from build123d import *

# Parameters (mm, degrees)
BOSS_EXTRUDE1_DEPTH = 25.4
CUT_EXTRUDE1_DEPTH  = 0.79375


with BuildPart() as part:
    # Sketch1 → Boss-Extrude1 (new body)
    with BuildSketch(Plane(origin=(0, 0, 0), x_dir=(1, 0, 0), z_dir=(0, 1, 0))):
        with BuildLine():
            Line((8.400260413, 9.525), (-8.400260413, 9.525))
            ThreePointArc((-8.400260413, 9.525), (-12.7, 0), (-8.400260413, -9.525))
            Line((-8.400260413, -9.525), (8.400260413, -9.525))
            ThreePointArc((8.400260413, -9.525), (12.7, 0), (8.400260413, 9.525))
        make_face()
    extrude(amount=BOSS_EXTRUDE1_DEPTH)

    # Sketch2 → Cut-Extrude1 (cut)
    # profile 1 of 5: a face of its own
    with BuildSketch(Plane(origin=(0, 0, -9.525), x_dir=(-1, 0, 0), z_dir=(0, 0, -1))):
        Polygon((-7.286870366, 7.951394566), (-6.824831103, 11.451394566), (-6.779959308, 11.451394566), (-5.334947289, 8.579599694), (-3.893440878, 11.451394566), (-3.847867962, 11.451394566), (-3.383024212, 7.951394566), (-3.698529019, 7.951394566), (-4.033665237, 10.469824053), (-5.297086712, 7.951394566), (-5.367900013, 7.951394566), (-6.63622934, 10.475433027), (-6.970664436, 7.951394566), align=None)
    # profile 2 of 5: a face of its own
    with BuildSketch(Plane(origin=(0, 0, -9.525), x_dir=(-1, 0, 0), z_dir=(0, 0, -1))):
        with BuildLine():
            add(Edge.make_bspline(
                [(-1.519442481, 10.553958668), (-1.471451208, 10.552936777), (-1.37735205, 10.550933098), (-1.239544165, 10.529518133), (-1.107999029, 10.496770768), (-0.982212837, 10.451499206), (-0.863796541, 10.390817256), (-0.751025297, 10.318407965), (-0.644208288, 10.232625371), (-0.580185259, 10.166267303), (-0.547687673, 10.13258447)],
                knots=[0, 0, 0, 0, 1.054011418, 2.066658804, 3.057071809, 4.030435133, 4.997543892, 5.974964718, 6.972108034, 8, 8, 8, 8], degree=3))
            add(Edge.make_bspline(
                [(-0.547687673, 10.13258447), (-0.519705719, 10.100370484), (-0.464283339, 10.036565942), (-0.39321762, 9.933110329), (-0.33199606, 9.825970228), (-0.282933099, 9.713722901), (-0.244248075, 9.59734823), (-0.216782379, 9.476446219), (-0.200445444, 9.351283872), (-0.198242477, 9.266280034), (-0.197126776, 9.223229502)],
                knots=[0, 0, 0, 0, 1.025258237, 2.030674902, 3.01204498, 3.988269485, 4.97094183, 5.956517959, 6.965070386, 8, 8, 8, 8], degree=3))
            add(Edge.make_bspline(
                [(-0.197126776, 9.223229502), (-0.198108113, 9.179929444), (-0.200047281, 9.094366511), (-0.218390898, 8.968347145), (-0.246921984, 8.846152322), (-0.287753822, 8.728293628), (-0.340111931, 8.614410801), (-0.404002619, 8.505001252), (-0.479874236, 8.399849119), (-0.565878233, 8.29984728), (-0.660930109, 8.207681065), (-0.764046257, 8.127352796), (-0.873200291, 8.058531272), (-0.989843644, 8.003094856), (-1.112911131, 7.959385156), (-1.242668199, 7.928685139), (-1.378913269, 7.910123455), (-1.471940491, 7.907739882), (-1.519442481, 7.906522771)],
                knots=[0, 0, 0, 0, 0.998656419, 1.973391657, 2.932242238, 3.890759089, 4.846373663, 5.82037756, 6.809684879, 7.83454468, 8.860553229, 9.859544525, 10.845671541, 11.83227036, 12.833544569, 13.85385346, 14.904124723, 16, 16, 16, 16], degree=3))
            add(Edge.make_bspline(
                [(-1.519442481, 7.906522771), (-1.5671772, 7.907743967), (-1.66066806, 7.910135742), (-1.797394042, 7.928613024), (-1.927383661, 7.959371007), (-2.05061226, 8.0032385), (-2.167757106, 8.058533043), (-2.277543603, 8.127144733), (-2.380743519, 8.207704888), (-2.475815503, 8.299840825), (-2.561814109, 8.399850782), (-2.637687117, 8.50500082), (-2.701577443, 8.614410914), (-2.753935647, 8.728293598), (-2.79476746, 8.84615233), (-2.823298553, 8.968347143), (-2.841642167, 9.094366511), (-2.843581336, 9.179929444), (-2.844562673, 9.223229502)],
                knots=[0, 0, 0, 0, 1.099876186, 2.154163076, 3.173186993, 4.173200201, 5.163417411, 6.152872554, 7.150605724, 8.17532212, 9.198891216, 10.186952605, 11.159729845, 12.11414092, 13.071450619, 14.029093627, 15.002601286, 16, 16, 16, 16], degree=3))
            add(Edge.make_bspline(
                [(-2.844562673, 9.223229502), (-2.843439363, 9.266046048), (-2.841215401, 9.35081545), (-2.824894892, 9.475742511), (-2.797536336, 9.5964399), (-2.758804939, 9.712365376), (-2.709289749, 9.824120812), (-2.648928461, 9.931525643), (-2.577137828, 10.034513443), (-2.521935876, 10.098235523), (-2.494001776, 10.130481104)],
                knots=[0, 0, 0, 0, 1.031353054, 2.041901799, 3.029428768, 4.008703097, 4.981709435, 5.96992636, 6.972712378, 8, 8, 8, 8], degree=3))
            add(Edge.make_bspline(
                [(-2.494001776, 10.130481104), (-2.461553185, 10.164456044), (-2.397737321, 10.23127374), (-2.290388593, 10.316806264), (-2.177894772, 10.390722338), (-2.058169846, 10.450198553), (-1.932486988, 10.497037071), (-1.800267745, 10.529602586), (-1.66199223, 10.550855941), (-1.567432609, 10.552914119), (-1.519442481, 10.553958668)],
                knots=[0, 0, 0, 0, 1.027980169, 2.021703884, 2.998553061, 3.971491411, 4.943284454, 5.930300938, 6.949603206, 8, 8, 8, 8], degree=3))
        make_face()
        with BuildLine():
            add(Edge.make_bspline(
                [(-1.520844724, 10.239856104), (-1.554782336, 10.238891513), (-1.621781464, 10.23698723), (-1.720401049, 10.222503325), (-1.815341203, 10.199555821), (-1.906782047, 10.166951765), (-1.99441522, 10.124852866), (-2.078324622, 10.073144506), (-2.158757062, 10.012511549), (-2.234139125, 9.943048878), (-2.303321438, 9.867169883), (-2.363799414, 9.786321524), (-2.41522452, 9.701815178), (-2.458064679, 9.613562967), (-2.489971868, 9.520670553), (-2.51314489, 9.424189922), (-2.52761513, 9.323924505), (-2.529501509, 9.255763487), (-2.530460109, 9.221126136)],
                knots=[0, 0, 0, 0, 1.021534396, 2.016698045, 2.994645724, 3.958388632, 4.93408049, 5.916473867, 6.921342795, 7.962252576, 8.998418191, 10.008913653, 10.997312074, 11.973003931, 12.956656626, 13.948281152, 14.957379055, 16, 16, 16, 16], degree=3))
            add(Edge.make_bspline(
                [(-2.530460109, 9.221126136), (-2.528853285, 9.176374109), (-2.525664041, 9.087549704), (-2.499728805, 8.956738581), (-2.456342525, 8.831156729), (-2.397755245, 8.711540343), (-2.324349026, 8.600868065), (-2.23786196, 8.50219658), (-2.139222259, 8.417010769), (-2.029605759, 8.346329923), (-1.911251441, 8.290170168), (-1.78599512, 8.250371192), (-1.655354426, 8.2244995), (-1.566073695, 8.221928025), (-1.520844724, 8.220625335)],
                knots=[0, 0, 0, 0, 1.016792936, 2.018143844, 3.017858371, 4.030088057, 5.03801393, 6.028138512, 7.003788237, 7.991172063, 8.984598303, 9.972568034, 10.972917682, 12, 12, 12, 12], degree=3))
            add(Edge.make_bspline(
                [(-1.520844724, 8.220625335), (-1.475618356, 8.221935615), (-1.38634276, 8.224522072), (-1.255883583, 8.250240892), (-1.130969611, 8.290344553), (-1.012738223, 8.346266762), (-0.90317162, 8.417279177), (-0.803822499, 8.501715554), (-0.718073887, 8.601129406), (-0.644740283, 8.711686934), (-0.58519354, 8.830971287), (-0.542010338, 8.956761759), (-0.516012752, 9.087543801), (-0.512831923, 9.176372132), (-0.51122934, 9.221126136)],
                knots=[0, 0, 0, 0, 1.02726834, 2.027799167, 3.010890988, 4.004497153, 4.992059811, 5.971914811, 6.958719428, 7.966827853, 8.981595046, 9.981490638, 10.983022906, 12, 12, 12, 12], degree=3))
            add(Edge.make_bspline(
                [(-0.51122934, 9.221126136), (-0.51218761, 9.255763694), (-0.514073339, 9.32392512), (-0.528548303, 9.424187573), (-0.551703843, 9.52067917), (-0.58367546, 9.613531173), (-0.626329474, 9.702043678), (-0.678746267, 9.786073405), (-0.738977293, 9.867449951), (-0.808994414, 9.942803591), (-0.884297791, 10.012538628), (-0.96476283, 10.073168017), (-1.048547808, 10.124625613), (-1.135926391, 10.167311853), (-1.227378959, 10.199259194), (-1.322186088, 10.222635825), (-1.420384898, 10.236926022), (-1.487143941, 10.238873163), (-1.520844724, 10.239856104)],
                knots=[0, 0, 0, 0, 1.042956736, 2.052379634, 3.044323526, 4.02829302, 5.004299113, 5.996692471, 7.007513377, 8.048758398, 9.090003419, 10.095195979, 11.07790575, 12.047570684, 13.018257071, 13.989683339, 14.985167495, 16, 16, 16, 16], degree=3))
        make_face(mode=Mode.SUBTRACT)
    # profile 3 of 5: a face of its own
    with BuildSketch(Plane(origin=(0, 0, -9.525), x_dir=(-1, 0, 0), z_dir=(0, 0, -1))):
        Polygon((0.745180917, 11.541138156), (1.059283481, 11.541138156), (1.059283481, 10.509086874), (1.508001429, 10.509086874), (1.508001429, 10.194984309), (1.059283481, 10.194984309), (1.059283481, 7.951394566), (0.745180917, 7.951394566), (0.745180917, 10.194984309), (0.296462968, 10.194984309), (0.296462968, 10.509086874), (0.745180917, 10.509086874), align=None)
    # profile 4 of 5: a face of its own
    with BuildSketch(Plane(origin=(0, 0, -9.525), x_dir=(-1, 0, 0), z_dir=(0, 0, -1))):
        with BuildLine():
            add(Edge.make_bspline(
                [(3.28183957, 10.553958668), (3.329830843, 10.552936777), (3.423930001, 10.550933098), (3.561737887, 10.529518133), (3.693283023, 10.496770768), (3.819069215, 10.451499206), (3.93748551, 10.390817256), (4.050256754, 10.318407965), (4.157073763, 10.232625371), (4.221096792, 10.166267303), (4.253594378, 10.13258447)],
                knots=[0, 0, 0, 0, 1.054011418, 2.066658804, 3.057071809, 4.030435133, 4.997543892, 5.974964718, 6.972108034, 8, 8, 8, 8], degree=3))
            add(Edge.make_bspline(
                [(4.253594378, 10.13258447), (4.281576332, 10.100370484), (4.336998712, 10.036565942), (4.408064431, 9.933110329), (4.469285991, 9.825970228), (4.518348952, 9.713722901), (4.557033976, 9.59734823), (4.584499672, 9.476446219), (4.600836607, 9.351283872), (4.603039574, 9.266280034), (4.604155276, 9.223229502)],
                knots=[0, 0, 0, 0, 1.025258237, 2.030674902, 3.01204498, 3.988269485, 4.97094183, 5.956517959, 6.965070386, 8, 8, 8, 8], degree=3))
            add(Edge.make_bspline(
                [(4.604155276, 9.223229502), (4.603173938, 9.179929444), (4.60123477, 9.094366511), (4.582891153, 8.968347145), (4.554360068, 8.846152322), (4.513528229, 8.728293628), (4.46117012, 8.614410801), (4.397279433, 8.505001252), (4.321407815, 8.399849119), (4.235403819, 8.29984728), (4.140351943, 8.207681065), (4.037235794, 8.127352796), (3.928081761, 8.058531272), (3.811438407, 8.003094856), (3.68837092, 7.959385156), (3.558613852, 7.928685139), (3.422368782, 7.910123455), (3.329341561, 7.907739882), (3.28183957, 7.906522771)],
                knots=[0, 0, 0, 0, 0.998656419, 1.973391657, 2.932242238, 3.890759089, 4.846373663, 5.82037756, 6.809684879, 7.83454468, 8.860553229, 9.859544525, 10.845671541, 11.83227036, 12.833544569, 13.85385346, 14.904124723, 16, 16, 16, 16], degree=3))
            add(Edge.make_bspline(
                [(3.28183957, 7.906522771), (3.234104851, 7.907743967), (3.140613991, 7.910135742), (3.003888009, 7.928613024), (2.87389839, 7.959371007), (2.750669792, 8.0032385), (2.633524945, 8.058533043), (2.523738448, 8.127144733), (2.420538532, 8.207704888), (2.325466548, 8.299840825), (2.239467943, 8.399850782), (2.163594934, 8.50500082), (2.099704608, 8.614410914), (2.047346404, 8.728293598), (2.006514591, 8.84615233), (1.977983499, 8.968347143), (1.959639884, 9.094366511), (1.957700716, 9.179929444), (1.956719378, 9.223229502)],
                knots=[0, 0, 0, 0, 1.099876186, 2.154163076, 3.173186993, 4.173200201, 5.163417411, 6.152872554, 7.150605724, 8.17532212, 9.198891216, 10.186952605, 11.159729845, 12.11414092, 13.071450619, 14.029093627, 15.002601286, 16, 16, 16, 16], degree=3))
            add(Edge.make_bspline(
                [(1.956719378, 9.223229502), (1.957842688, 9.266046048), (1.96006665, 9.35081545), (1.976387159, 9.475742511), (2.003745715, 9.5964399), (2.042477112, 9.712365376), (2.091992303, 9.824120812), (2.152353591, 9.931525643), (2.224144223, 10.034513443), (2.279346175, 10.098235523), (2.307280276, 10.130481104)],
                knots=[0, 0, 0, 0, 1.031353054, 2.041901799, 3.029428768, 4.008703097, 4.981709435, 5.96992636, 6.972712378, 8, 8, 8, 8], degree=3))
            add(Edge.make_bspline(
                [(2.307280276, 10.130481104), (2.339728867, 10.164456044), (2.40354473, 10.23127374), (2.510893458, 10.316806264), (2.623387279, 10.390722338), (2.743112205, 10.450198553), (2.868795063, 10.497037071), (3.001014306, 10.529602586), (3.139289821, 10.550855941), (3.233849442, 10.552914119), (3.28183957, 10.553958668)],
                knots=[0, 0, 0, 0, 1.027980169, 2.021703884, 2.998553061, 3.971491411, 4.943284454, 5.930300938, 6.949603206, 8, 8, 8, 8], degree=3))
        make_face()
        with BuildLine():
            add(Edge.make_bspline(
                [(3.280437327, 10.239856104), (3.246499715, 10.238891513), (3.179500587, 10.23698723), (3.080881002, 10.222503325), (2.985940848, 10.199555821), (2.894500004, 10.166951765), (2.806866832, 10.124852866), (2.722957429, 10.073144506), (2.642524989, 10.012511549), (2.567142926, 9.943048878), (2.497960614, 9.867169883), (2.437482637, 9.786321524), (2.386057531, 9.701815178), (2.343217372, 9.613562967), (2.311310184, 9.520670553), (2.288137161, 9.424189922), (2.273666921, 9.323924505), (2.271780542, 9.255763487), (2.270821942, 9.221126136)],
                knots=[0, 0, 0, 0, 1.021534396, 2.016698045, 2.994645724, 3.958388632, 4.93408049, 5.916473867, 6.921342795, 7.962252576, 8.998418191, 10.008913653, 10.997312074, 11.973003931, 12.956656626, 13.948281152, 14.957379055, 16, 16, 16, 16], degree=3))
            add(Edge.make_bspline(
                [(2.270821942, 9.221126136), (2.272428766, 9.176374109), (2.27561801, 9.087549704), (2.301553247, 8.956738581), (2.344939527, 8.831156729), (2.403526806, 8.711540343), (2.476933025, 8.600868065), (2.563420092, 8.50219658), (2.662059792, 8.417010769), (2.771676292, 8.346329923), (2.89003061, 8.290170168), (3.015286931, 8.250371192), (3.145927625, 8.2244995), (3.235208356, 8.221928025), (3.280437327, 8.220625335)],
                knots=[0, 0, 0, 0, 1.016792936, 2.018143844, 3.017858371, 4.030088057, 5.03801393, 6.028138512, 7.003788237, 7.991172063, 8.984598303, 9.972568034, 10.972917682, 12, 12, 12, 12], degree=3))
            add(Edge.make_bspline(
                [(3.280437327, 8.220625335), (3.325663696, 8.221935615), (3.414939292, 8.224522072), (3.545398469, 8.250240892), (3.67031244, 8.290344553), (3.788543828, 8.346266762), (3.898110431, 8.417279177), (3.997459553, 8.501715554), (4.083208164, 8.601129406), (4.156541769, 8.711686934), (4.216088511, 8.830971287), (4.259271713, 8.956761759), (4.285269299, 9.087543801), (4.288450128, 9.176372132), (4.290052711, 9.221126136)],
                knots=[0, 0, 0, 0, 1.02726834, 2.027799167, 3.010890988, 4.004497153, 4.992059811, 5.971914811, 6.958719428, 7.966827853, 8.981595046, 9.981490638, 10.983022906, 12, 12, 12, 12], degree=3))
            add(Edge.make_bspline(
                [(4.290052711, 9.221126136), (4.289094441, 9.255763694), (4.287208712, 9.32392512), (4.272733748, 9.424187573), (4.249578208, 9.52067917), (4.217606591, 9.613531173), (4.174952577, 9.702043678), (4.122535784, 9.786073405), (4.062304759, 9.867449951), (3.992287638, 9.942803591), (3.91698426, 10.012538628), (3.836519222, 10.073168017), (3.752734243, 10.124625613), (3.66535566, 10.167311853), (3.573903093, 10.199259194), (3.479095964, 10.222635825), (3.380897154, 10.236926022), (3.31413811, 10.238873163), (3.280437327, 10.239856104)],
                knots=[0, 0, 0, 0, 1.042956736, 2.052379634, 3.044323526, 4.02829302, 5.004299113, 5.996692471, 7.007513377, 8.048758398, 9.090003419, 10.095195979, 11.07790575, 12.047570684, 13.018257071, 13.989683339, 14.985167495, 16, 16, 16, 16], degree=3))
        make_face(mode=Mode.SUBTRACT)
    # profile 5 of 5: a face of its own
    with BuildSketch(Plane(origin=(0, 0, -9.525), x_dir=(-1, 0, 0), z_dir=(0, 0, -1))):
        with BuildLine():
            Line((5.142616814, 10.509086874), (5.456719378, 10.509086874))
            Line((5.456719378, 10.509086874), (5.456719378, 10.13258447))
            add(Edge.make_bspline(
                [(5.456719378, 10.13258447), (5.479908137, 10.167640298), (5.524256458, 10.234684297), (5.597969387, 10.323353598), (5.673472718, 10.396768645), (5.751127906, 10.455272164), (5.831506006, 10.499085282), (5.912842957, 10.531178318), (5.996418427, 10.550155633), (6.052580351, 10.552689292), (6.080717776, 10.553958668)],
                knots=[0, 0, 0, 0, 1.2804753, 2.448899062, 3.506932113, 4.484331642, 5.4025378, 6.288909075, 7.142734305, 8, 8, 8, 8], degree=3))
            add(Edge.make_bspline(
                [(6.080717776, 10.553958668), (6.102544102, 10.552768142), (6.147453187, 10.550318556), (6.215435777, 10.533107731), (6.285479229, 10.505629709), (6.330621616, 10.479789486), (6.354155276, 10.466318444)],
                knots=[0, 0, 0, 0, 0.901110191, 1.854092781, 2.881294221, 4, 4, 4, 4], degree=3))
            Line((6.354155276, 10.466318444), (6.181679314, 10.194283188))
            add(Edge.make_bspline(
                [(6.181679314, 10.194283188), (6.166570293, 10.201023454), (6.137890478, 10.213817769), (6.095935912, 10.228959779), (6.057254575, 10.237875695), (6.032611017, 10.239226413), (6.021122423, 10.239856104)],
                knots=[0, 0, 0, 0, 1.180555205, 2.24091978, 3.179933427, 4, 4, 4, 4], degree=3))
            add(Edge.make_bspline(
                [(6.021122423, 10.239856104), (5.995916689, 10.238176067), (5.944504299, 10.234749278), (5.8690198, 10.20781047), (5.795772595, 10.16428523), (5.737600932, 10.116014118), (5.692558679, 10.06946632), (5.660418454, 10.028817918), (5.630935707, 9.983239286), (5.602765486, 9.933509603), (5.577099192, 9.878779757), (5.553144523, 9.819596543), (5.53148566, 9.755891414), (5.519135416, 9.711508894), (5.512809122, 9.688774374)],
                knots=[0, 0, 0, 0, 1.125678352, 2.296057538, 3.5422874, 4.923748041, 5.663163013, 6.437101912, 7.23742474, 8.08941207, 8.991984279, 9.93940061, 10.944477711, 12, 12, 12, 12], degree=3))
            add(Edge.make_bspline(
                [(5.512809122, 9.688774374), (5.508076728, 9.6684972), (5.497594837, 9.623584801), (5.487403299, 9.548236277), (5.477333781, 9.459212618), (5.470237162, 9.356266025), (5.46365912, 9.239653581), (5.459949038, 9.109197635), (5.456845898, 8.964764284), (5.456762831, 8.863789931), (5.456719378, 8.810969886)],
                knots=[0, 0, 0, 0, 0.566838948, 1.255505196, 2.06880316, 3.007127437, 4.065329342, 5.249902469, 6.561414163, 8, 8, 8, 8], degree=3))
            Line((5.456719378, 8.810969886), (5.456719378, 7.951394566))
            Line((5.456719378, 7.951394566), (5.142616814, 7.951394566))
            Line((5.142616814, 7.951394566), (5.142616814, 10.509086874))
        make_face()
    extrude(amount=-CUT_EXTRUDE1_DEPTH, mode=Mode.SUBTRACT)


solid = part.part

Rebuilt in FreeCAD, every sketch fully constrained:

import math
import FreeCAD as App
import Part
import Sketcher
Q = App.Units.Quantity


def add_polygon(sketch, points):
    """Adds a closed chain of lines whose ends are joined by coincident constraints."""
    first, n = sketch.GeometryCount, len(points)
    for a, b in zip(points, points[1:] + points[:1]):
        sketch.addGeometry(Part.LineSegment(App.Vector(*a, 0), App.Vector(*b, 0)), False)
    for i in range(n):
        sketch.addConstraint(Sketcher.Constraint("Coincident", first + i, 2, first + (i + 1) % n, 1))

doc = App.newDocument("Part")
body = doc.addObject("PartDesign::Body", "Body")

# Sketch on XZ plane
sketch1 = body.newObject("Sketcher::SketchObject", "Sketch")
sketch1.AttachmentSupport = (doc.getObject("XZ_Plane"), [""])
sketch1.MapMode = "FlatFace"
sketch1.addGeometry([
    Part.LineSegment(App.Vector(8, -10, 0), App.Vector(-8, -10, 0)),
    Part.ArcOfCircle(Part.Circle(App.Vector(0, 0, 0), App.Vector(0, 0, 1), 13), math.radians(131), math.radians(229)),
    Part.LineSegment(App.Vector(-8, 10, 0), App.Vector(8, 10, 0)),
    Part.ArcOfCircle(Part.Circle(App.Vector(0, 0, 0), App.Vector(0, 0, 1), 13), math.radians(-49), math.radians(49)),
], False)
sketch1.addConstraint([
    Sketcher.Constraint("Coincident", 0, 2, 1, 2),
    Sketcher.Constraint("Coincident", 1, 1, 2, 1),
    Sketcher.Constraint("Coincident", 2, 2, 3, 2),
    Sketcher.Constraint("Coincident", 3, 1, 0, 1),
    Sketcher.Constraint("Horizontal", 0),
    Sketcher.Constraint("Horizontal", 2),
    Sketcher.Constraint("Coincident", 1, 3, -1, 1),
    Sketcher.Constraint("Coincident", 3, 3, -1, 1),
    Sketcher.Constraint("Equal", 1, 3),
    Sketcher.Constraint("Vertical", 0, 2, 1, 1),
    Sketcher.Constraint("Radius", 1, Q("0.5 in")),
    Sketcher.Constraint("DistanceY", 0, 2, 1, 1, Q("0.75 in")),
])
pad1 = body.newObject("PartDesign::Pad", "Pad")
pad1.Profile = sketch1
pad1.Length = Q("1 in")
pad1.Reversed = True

# Sketch on XY plane
sketch2 = body.newObject("Sketcher::SketchObject", "Sketch001")
sketch2.AttachmentSupport = (doc.getObject("XY_Plane"), [""])
sketch2.MapMode = "FlatFace"
sketch2.AttachmentOffset = App.Placement(App.Vector(0, 0, -0.375 * 25.4), App.Rotation())
add_polygon(sketch2, [(6.824831, 11.451395), (7.28687, 7.951395), (6.970664, 7.951395), (6.636229, 10.475433), (5.3679, 7.951395), (5.297087, 7.951395), (4.033665, 10.469824), (3.698529, 7.951395), (3.383024, 7.951395), (3.847868, 11.451395), (3.893441, 11.451395), (5.334947, 8.5796), (6.779959, 11.451395)])  # lines 0-12
sketch2.addGeometry(Part.BSplineCurve([App.Vector(1.519442, 10.553959, 0), App.Vector(1.471451, 10.552937, 0), App.Vector(1.377352, 10.550933, 0), App.Vector(1.239544, 10.529518, 0), App.Vector(1.107999, 10.496771, 0), App.Vector(0.982213, 10.451499, 0), App.Vector(0.863797, 10.390817, 0), App.Vector(0.751025, 10.318408, 0), App.Vector(0.644208, 10.232625, 0), App.Vector(0.580185, 10.166267, 0), App.Vector(0.547688, 10.132584, 0)], [4, 1, 1, 1, 1, 1, 1, 1, 4], [0, 1.054011418, 2.066658804, 3.057071809, 4.030435133, 4.997543892, 5.974964718, 6.972108034, 8], False, 3, [1, 1, 1, 1, 1, 1, 1, 1, 1, 1, 1], False), False)  # 13
sketch2.addGeometry(Part.BSplineCurve([App.Vector(2.494002, 10.130481, 0), App.Vector(2.461553, 10.164456, 0), App.Vector(2.397737, 10.231274, 0), App.Vector(2.290389, 10.316806, 0), App.Vector(2.177895, 10.390722, 0), App.Vector(2.05817, 10.450199, 0), App.Vector(1.932487, 10.497037, 0), App.Vector(1.800268, 10.529603, 0), App.Vector(1.661992, 10.550856, 0), App.Vector(1.567433, 10.552914, 0), App.Vector(1.519442, 10.553959, 0)], [4, 1, 1, 1, 1, 1, 1, 1, 4], [0, 1.027980169, 2.021703884, 2.998553061, 3.971491411, 4.943284454, 5.930300938, 6.949603206, 8], False, 3, [1, 1, 1, 1, 1, 1, 1, 1, 1, 1, 1], False), False)  # 14
sketch2.addGeometry(Part.BSplineCurve([App.Vector(2.844563, 9.22323, 0), App.Vector(2.843439, 9.266046, 0), App.Vector(2.841215, 9.350815, 0), App.Vector(2.824895, 9.475743, 0), App.Vector(2.797536, 9.59644, 0), App.Vector(2.758805, 9.712365, 0), App.Vector(2.70929, 9.824121, 0), App.Vector(2.648928, 9.931526, 0), App.Vector(2.577138, 10.034513, 0), App.Vector(2.521936, 10.098236, 0), App.Vector(2.494002, 10.130481, 0)], [4, 1, 1, 1, 1, 1, 1, 1, 4], [0, 1.031353054, 2.041901799, 3.029428768, 4.008703097, 4.981709435, 5.96992636, 6.972712378, 8], False, 3, [1, 1, 1, 1, 1, 1, 1, 1, 1, 1, 1], False), False)  # 15
sketch2.addGeometry(Part.BSplineCurve([App.Vector(1.519442, 7.906523, 0), App.Vector(1.567177, 7.907744, 0), App.Vector(1.660668, 7.910136, 0), App.Vector(1.797394, 7.928613, 0), App.Vector(1.927384, 7.959371, 0), App.Vector(2.050612, 8.003239, 0), App.Vector(2.167757, 8.058533, 0), App.Vector(2.277544, 8.127145, 0), App.Vector(2.380744, 8.207705, 0), App.Vector(2.475816, 8.299841, 0), App.Vector(2.561814, 8.399851, 0), App.Vector(2.637687, 8.505001, 0), App.Vector(2.701577, 8.614411, 0), App.Vector(2.753936, 8.728294, 0), App.Vector(2.794767, 8.846152, 0), App.Vector(2.823299, 8.968347, 0), App.Vector(2.841642, 9.094367, 0), App.Vector(2.843581, 9.179929, 0), App.Vector(2.844563, 9.22323, 0)], [4, 1, 1, 1, 1, 1, 1, 1, 1, 1, 1, 1, 1, 1, 1, 1, 4], [0, 1.099876186, 2.154163076, 3.173186993, 4.173200201, 5.163417411, 6.152872554, 7.150605724, 8.17532212, 9.198891216, 10.186952605, 11.159729845, 12.11414092, 13.071450619, 14.029093627, 15.002601286, 16], False, 3, [1, 1, 1, 1, 1, 1, 1, 1, 1, 1, 1, 1, 1, 1, 1, 1, 1, 1, 1], False), False)  # 16
sketch2.addGeometry(Part.BSplineCurve([App.Vector(0.197127, 9.22323, 0), App.Vector(0.198108, 9.179929, 0), App.Vector(0.200047, 9.094367, 0), App.Vector(0.218391, 8.968347, 0), App.Vector(0.246922, 8.846152, 0), App.Vector(0.287754, 8.728294, 0), App.Vector(0.340112, 8.614411, 0), App.Vector(0.404003, 8.505001, 0), App.Vector(0.479874, 8.399849, 0), App.Vector(0.565878, 8.299847, 0), App.Vector(0.66093, 8.207681, 0), App.Vector(0.764046, 8.127353, 0), App.Vector(0.8732, 8.058531, 0), App.Vector(0.989844, 8.003095, 0), App.Vector(1.112911, 7.959385, 0), App.Vector(1.242668, 7.928685, 0), App.Vector(1.378913, 7.910123, 0), App.Vector(1.47194, 7.90774, 0), App.Vector(1.519442, 7.906523, 0)], [4, 1, 1, 1, 1, 1, 1, 1, 1, 1, 1, 1, 1, 1, 1, 1, 4], [0, 0.998656419, 1.973391657, 2.932242238, 3.890759089, 4.846373663, 5.82037756, 6.809684879, 7.83454468, 8.860553229, 9.859544525, 10.845671541, 11.83227036, 12.833544569, 13.85385346, 14.904124723, 16], False, 3, [1, 1, 1, 1, 1, 1, 1, 1, 1, 1, 1, 1, 1, 1, 1, 1, 1, 1, 1], False), False)  # 17
sketch2.addGeometry(Part.BSplineCurve([App.Vector(0.547688, 10.132584, 0), App.Vector(0.519706, 10.10037, 0), App.Vector(0.464283, 10.036566, 0), App.Vector(0.393218, 9.93311, 0), App.Vector(0.331996, 9.82597, 0), App.Vector(0.282933, 9.713723, 0), App.Vector(0.244248, 9.597348, 0), App.Vector(0.216782, 9.476446, 0), App.Vector(0.200445, 9.351284, 0), App.Vector(0.198242, 9.26628, 0), App.Vector(0.197127, 9.22323, 0)], [4, 1, 1, 1, 1, 1, 1, 1, 4], [0, 1.025258237, 2.030674902, 3.01204498, 3.988269485, 4.97094183, 5.956517959, 6.965070386, 8], False, 3, [1, 1, 1, 1, 1, 1, 1, 1, 1, 1, 1], False), False)  # 18
sketch2.addGeometry(Part.BSplineCurve([App.Vector(0.511229, 9.221126, 0), App.Vector(0.512188, 9.255764, 0), App.Vector(0.514073, 9.323925, 0), App.Vector(0.528548, 9.424188, 0), App.Vector(0.551704, 9.520679, 0), App.Vector(0.583675, 9.613531, 0), App.Vector(0.626329, 9.702044, 0), App.Vector(0.678746, 9.786073, 0), App.Vector(0.738977, 9.86745, 0), App.Vector(0.808994, 9.942804, 0), App.Vector(0.884298, 10.012539, 0), App.Vector(0.964763, 10.073168, 0), App.Vector(1.048548, 10.124626, 0), App.Vector(1.135926, 10.167312, 0), App.Vector(1.227379, 10.199259, 0), App.Vector(1.322186, 10.222636, 0), App.Vector(1.420385, 10.236926, 0), App.Vector(1.487144, 10.238873, 0), App.Vector(1.520845, 10.239856, 0)], [4, 1, 1, 1, 1, 1, 1, 1, 1, 1, 1, 1, 1, 1, 1, 1, 4], [0, 1.042956736, 2.052379634, 3.044323526, 4.02829302, 5.004299113, 5.996692471, 7.007513377, 8.048758398, 9.090003419, 10.095195979, 11.07790575, 12.047570684, 13.018257071, 13.989683339, 14.985167495, 16], False, 3, [1, 1, 1, 1, 1, 1, 1, 1, 1, 1, 1, 1, 1, 1, 1, 1, 1, 1, 1], False), False)  # 19
sketch2.addGeometry(Part.BSplineCurve([App.Vector(1.520845, 8.220625, 0), App.Vector(1.475618, 8.221936, 0), App.Vector(1.386343, 8.224522, 0), App.Vector(1.255884, 8.250241, 0), App.Vector(1.13097, 8.290345, 0), App.Vector(1.012738, 8.346267, 0), App.Vector(0.903172, 8.417279, 0), App.Vector(0.803822, 8.501716, 0), App.Vector(0.718074, 8.601129, 0), App.Vector(0.64474, 8.711687, 0), App.Vector(0.585194, 8.830971, 0), App.Vector(0.54201, 8.956762, 0), App.Vector(0.516013, 9.087544, 0), App.Vector(0.512832, 9.176372, 0), App.Vector(0.511229, 9.221126, 0)], [4, 1, 1, 1, 1, 1, 1, 1, 1, 1, 1, 1, 4], [0, 1.02726834, 2.027799167, 3.010890988, 4.004497153, 4.992059811, 5.971914811, 6.958719428, 7.966827853, 8.981595046, 9.981490638, 10.983022906, 12], False, 3, [1, 1, 1, 1, 1, 1, 1, 1, 1, 1, 1, 1, 1, 1, 1], False), False)  # 20
sketch2.addGeometry(Part.BSplineCurve([App.Vector(2.53046, 9.221126, 0), App.Vector(2.528853, 9.176374, 0), App.Vector(2.525664, 9.08755, 0), App.Vector(2.499729, 8.956739, 0), App.Vector(2.456343, 8.831157, 0), App.Vector(2.397755, 8.71154, 0), App.Vector(2.324349, 8.600868, 0), App.Vector(2.237862, 8.502197, 0), App.Vector(2.139222, 8.417011, 0), App.Vector(2.029606, 8.34633, 0), App.Vector(1.911251, 8.29017, 0), App.Vector(1.785995, 8.250371, 0), App.Vector(1.655354, 8.2245, 0), App.Vector(1.566074, 8.221928, 0), App.Vector(1.520845, 8.220625, 0)], [4, 1, 1, 1, 1, 1, 1, 1, 1, 1, 1, 1, 4], [0, 1.016792936, 2.018143844, 3.017858371, 4.030088057, 5.03801393, 6.028138512, 7.003788237, 7.991172063, 8.984598303, 9.972568034, 10.972917682, 12], False, 3, [1, 1, 1, 1, 1, 1, 1, 1, 1, 1, 1, 1, 1, 1, 1], False), False)  # 21
sketch2.addGeometry(Part.BSplineCurve([App.Vector(1.520845, 10.239856, 0), App.Vector(1.554782, 10.238892, 0), App.Vector(1.621781, 10.236987, 0), App.Vector(1.720401, 10.222503, 0), App.Vector(1.815341, 10.199556, 0), App.Vector(1.906782, 10.166952, 0), App.Vector(1.994415, 10.124853, 0), App.Vector(2.078325, 10.073145, 0), App.Vector(2.158757, 10.012512, 0), App.Vector(2.234139, 9.943049, 0), App.Vector(2.303321, 9.86717, 0), App.Vector(2.363799, 9.786322, 0), App.Vector(2.415225, 9.701815, 0), App.Vector(2.458065, 9.613563, 0), App.Vector(2.489972, 9.520671, 0), App.Vector(2.513145, 9.42419, 0), App.Vector(2.527615, 9.323925, 0), App.Vector(2.529502, 9.255763, 0), App.Vector(2.53046, 9.221126, 0)], [4, 1, 1, 1, 1, 1, 1, 1, 1, 1, 1, 1, 1, 1, 1, 1, 4], [0, 1.021534396, 2.016698045, 2.994645724, 3.958388632, 4.93408049, 5.916473867, 6.921342795, 7.962252576, 8.998418191, 10.008913653, 10.997312074, 11.973003931, 12.956656626, 13.948281152, 14.957379055, 16], False, 3, [1, 1, 1, 1, 1, 1, 1, 1, 1, 1, 1, 1, 1, 1, 1, 1, 1, 1, 1], False), False)  # 22
add_polygon(sketch2, [(-1.059283, 11.541138), (-0.745181, 11.541138), (-0.745181, 10.509087), (-0.296463, 10.509087), (-0.296463, 10.194984), (-0.745181, 10.194984), (-0.745181, 7.951395), (-1.059283, 7.951395), (-1.059283, 10.194984), (-1.508001, 10.194984), (-1.508001, 10.509087), (-1.059283, 10.509087)])  # lines 23-34
sketch2.addGeometry(Part.BSplineCurve([App.Vector(-3.28184, 10.553959, 0), App.Vector(-3.329831, 10.552937, 0), App.Vector(-3.42393, 10.550933, 0), App.Vector(-3.561738, 10.529518, 0), App.Vector(-3.693283, 10.496771, 0), App.Vector(-3.819069, 10.451499, 0), App.Vector(-3.937486, 10.390817, 0), App.Vector(-4.050257, 10.318408, 0), App.Vector(-4.157074, 10.232625, 0), App.Vector(-4.221097, 10.166267, 0), App.Vector(-4.253594, 10.132584, 0)], [4, 1, 1, 1, 1, 1, 1, 1, 4], [0, 1.054011418, 2.066658804, 3.057071809, 4.030435133, 4.997543892, 5.974964718, 6.972108034, 8], False, 3, [1, 1, 1, 1, 1, 1, 1, 1, 1, 1, 1], False), False)  # 35
sketch2.addGeometry(Part.BSplineCurve([App.Vector(-2.30728, 10.130481, 0), App.Vector(-2.339729, 10.164456, 0), App.Vector(-2.403545, 10.231274, 0), App.Vector(-2.510893, 10.316806, 0), App.Vector(-2.623387, 10.390722, 0), App.Vector(-2.743112, 10.450199, 0), App.Vector(-2.868795, 10.497037, 0), App.Vector(-3.001014, 10.529603, 0), App.Vector(-3.13929, 10.550856, 0), App.Vector(-3.233849, 10.552914, 0), App.Vector(-3.28184, 10.553959, 0)], [4, 1, 1, 1, 1, 1, 1, 1, 4], [0, 1.027980169, 2.021703884, 2.998553061, 3.971491411, 4.943284454, 5.930300938, 6.949603206, 8], False, 3, [1, 1, 1, 1, 1, 1, 1, 1, 1, 1, 1], False), False)  # 36
sketch2.addGeometry(Part.BSplineCurve([App.Vector(-1.956719, 9.22323, 0), App.Vector(-1.957843, 9.266046, 0), App.Vector(-1.960067, 9.350815, 0), App.Vector(-1.976387, 9.475743, 0), App.Vector(-2.003746, 9.59644, 0), App.Vector(-2.042477, 9.712365, 0), App.Vector(-2.091992, 9.824121, 0), App.Vector(-2.152354, 9.931526, 0), App.Vector(-2.224144, 10.034513, 0), App.Vector(-2.279346, 10.098236, 0), App.Vector(-2.30728, 10.130481, 0)], [4, 1, 1, 1, 1, 1, 1, 1, 4], [0, 1.031353054, 2.041901799, 3.029428768, 4.008703097, 4.981709435, 5.96992636, 6.972712378, 8], False, 3, [1, 1, 1, 1, 1, 1, 1, 1, 1, 1, 1], False), False)  # 37
sketch2.addGeometry(Part.BSplineCurve([App.Vector(-3.28184, 7.906523, 0), App.Vector(-3.234105, 7.907744, 0), App.Vector(-3.140614, 7.910136, 0), App.Vector(-3.003888, 7.928613, 0), App.Vector(-2.873898, 7.959371, 0), App.Vector(-2.75067, 8.003239, 0), App.Vector(-2.633525, 8.058533, 0), App.Vector(-2.523738, 8.127145, 0), App.Vector(-2.420539, 8.207705, 0), App.Vector(-2.325467, 8.299841, 0), App.Vector(-2.239468, 8.399851, 0), App.Vector(-2.163595, 8.505001, 0), App.Vector(-2.099705, 8.614411, 0), App.Vector(-2.047346, 8.728294, 0), App.Vector(-2.006515, 8.846152, 0), App.Vector(-1.977983, 8.968347, 0), App.Vector(-1.95964, 9.094367, 0), App.Vector(-1.957701, 9.179929, 0), App.Vector(-1.956719, 9.22323, 0)], [4, 1, 1, 1, 1, 1, 1, 1, 1, 1, 1, 1, 1, 1, 1, 1, 4], [0, 1.099876186, 2.154163076, 3.173186993, 4.173200201, 5.163417411, 6.152872554, 7.150605724, 8.17532212, 9.198891216, 10.186952605, 11.159729845, 12.11414092, 13.071450619, 14.029093627, 15.002601286, 16], False, 3, [1, 1, 1, 1, 1, 1, 1, 1, 1, 1, 1, 1, 1, 1, 1, 1, 1, 1, 1], False), False)  # 38
sketch2.addGeometry(Part.BSplineCurve([App.Vector(-4.604155, 9.22323, 0), App.Vector(-4.603174, 9.179929, 0), App.Vector(-4.601235, 9.094367, 0), App.Vector(-4.582891, 8.968347, 0), App.Vector(-4.55436, 8.846152, 0), App.Vector(-4.513528, 8.728294, 0), App.Vector(-4.46117, 8.614411, 0), App.Vector(-4.397279, 8.505001, 0), App.Vector(-4.321408, 8.399849, 0), App.Vector(-4.235404, 8.299847, 0), App.Vector(-4.140352, 8.207681, 0), App.Vector(-4.037236, 8.127353, 0), App.Vector(-3.928082, 8.058531, 0), App.Vector(-3.811438, 8.003095, 0), App.Vector(-3.688371, 7.959385, 0), App.Vector(-3.558614, 7.928685, 0), App.Vector(-3.422369, 7.910123, 0), App.Vector(-3.329342, 7.90774, 0), App.Vector(-3.28184, 7.906523, 0)], [4, 1, 1, 1, 1, 1, 1, 1, 1, 1, 1, 1, 1, 1, 1, 1, 4], [0, 0.998656419, 1.973391657, 2.932242238, 3.890759089, 4.846373663, 5.82037756, 6.809684879, 7.83454468, 8.860553229, 9.859544525, 10.845671541, 11.83227036, 12.833544569, 13.85385346, 14.904124723, 16], False, 3, [1, 1, 1, 1, 1, 1, 1, 1, 1, 1, 1, 1, 1, 1, 1, 1, 1, 1, 1], False), False)  # 39
sketch2.addGeometry(Part.BSplineCurve([App.Vector(-4.253594, 10.132584, 0), App.Vector(-4.281576, 10.10037, 0), App.Vector(-4.336999, 10.036566, 0), App.Vector(-4.408064, 9.93311, 0), App.Vector(-4.469286, 9.82597, 0), App.Vector(-4.518349, 9.713723, 0), App.Vector(-4.557034, 9.597348, 0), App.Vector(-4.5845, 9.476446, 0), App.Vector(-4.600837, 9.351284, 0), App.Vector(-4.60304, 9.26628, 0), App.Vector(-4.604155, 9.22323, 0)], [4, 1, 1, 1, 1, 1, 1, 1, 4], [0, 1.025258237, 2.030674902, 3.01204498, 3.988269485, 4.97094183, 5.956517959, 6.965070386, 8], False, 3, [1, 1, 1, 1, 1, 1, 1, 1, 1, 1, 1], False), False)  # 40
sketch2.addGeometry(Part.BSplineCurve([App.Vector(-4.290053, 9.221126, 0), App.Vector(-4.289094, 9.255764, 0), App.Vector(-4.287209, 9.323925, 0), App.Vector(-4.272734, 9.424188, 0), App.Vector(-4.249578, 9.520679, 0), App.Vector(-4.217607, 9.613531, 0), App.Vector(-4.174953, 9.702044, 0), App.Vector(-4.122536, 9.786073, 0), App.Vector(-4.062305, 9.86745, 0), App.Vector(-3.992288, 9.942804, 0), App.Vector(-3.916984, 10.012539, 0), App.Vector(-3.836519, 10.073168, 0), App.Vector(-3.752734, 10.124626, 0), App.Vector(-3.665356, 10.167312, 0), App.Vector(-3.573903, 10.199259, 0), App.Vector(-3.479096, 10.222636, 0), App.Vector(-3.380897, 10.236926, 0), App.Vector(-3.314138, 10.238873, 0), App.Vector(-3.280437, 10.239856, 0)], [4, 1, 1, 1, 1, 1, 1, 1, 1, 1, 1, 1, 1, 1, 1, 1, 4], [0, 1.042956736, 2.052379634, 3.044323526, 4.02829302, 5.004299113, 5.996692471, 7.007513377, 8.048758398, 9.090003419, 10.095195979, 11.07790575, 12.047570684, 13.018257071, 13.989683339, 14.985167495, 16], False, 3, [1, 1, 1, 1, 1, 1, 1, 1, 1, 1, 1, 1, 1, 1, 1, 1, 1, 1, 1], False), False)  # 41
sketch2.addGeometry(Part.BSplineCurve([App.Vector(-3.280437, 8.220625, 0), App.Vector(-3.325664, 8.221936, 0), App.Vector(-3.414939, 8.224522, 0), App.Vector(-3.545398, 8.250241, 0), App.Vector(-3.670312, 8.290345, 0), App.Vector(-3.788544, 8.346267, 0), App.Vector(-3.89811, 8.417279, 0), App.Vector(-3.99746, 8.501716, 0), App.Vector(-4.083208, 8.601129, 0), App.Vector(-4.156542, 8.711687, 0), App.Vector(-4.216089, 8.830971, 0), App.Vector(-4.259272, 8.956762, 0), App.Vector(-4.285269, 9.087544, 0), App.Vector(-4.28845, 9.176372, 0), App.Vector(-4.290053, 9.221126, 0)], [4, 1, 1, 1, 1, 1, 1, 1, 1, 1, 1, 1, 4], [0, 1.02726834, 2.027799167, 3.010890988, 4.004497153, 4.992059811, 5.971914811, 6.958719428, 7.966827853, 8.981595046, 9.981490638, 10.983022906, 12], False, 3, [1, 1, 1, 1, 1, 1, 1, 1, 1, 1, 1, 1, 1, 1, 1], False), False)  # 42
sketch2.addGeometry(Part.BSplineCurve([App.Vector(-2.270822, 9.221126, 0), App.Vector(-2.272429, 9.176374, 0), App.Vector(-2.275618, 9.08755, 0), App.Vector(-2.301553, 8.956739, 0), App.Vector(-2.34494, 8.831157, 0), App.Vector(-2.403527, 8.71154, 0), App.Vector(-2.476933, 8.600868, 0), App.Vector(-2.56342, 8.502197, 0), App.Vector(-2.66206, 8.417011, 0), App.Vector(-2.771676, 8.34633, 0), App.Vector(-2.890031, 8.29017, 0), App.Vector(-3.015287, 8.250371, 0), App.Vector(-3.145928, 8.2245, 0), App.Vector(-3.235208, 8.221928, 0), App.Vector(-3.280437, 8.220625, 0)], [4, 1, 1, 1, 1, 1, 1, 1, 1, 1, 1, 1, 4], [0, 1.016792936, 2.018143844, 3.017858371, 4.030088057, 5.03801393, 6.028138512, 7.003788237, 7.991172063, 8.984598303, 9.972568034, 10.972917682, 12], False, 3, [1, 1, 1, 1, 1, 1, 1, 1, 1, 1, 1, 1, 1, 1, 1], False), False)  # 43
sketch2.addGeometry(Part.BSplineCurve([App.Vector(-3.280437, 10.239856, 0), App.Vector(-3.2465, 10.238892, 0), App.Vector(-3.179501, 10.236987, 0), App.Vector(-3.080881, 10.222503, 0), App.Vector(-2.985941, 10.199556, 0), App.Vector(-2.8945, 10.166952, 0), App.Vector(-2.806867, 10.124853, 0), App.Vector(-2.722957, 10.073145, 0), App.Vector(-2.642525, 10.012512, 0), App.Vector(-2.567143, 9.943049, 0), App.Vector(-2.497961, 9.86717, 0), App.Vector(-2.437483, 9.786322, 0), App.Vector(-2.386058, 9.701815, 0), App.Vector(-2.343217, 9.613563, 0), App.Vector(-2.31131, 9.520671, 0), App.Vector(-2.288137, 9.42419, 0), App.Vector(-2.273667, 9.323925, 0), App.Vector(-2.271781, 9.255763, 0), App.Vector(-2.270822, 9.221126, 0)], [4, 1, 1, 1, 1, 1, 1, 1, 1, 1, 1, 1, 1, 1, 1, 1, 4], [0, 1.021534396, 2.016698045, 2.994645724, 3.958388632, 4.93408049, 5.916473867, 6.921342795, 7.962252576, 8.998418191, 10.008913653, 10.997312074, 11.973003931, 12.956656626, 13.948281152, 14.957379055, 16], False, 3, [1, 1, 1, 1, 1, 1, 1, 1, 1, 1, 1, 1, 1, 1, 1, 1, 1, 1, 1], False), False)  # 44
sketch2.addGeometry(Part.LineSegment(App.Vector(-5.456719, 10.509087, 0), App.Vector(-5.142617, 10.509087, 0)), False)  # 45
sketch2.addGeometry(Part.LineSegment(App.Vector(-5.142617, 10.509087, 0), App.Vector(-5.142617, 7.951395, 0)), False)  # 46
sketch2.addGeometry(Part.LineSegment(App.Vector(-5.142617, 7.951395, 0), App.Vector(-5.456719, 7.951395, 0)), False)  # 47
sketch2.addGeometry(Part.LineSegment(App.Vector(-5.456719, 7.951395, 0), App.Vector(-5.456719, 8.81097, 0)), False)  # 48
sketch2.addGeometry(Part.BSplineCurve([App.Vector(-5.512809, 9.688774, 0), App.Vector(-5.508077, 9.668497, 0), App.Vector(-5.497595, 9.623585, 0), App.Vector(-5.487403, 9.548236, 0), App.Vector(-5.477334, 9.459213, 0), App.Vector(-5.470237, 9.356266, 0), App.Vector(-5.463659, 9.239654, 0), App.Vector(-5.459949, 9.109198, 0), App.Vector(-5.456846, 8.964764, 0), App.Vector(-5.456763, 8.86379, 0), App.Vector(-5.456719, 8.81097, 0)], [4, 1, 1, 1, 1, 1, 1, 1, 4], [0, 0.566838948, 1.255505196, 2.06880316, 3.007127437, 4.065329342, 5.249902469, 6.561414163, 8], False, 3, [1, 1, 1, 1, 1, 1, 1, 1, 1, 1, 1], False), False)  # 49
sketch2.addGeometry(Part.BSplineCurve([App.Vector(-6.021122, 10.239856, 0), App.Vector(-5.995917, 10.238176, 0), App.Vector(-5.944504, 10.234749, 0), App.Vector(-5.86902, 10.20781, 0), App.Vector(-5.795773, 10.164285, 0), App.Vector(-5.737601, 10.116014, 0), App.Vector(-5.692559, 10.069466, 0), App.Vector(-5.660418, 10.028818, 0), App.Vector(-5.630936, 9.983239, 0), App.Vector(-5.602765, 9.93351, 0), App.Vector(-5.577099, 9.87878, 0), App.Vector(-5.553145, 9.819597, 0), App.Vector(-5.531486, 9.755891, 0), App.Vector(-5.519135, 9.711509, 0), App.Vector(-5.512809, 9.688774, 0)], [4, 1, 1, 1, 1, 1, 1, 1, 1, 1, 1, 1, 4], [0, 1.125678352, 2.296057538, 3.5422874, 4.923748041, 5.663163013, 6.437101912, 7.23742474, 8.08941207, 8.991984279, 9.93940061, 10.944477711, 12], False, 3, [1, 1, 1, 1, 1, 1, 1, 1, 1, 1, 1, 1, 1, 1, 1], False), False)  # 50
sketch2.addGeometry(Part.BSplineCurve([App.Vector(-6.181679, 10.194283, 0), App.Vector(-6.16657, 10.201023, 0), App.Vector(-6.13789, 10.213818, 0), App.Vector(-6.095936, 10.22896, 0), App.Vector(-6.057255, 10.237876, 0), App.Vector(-6.032611, 10.239226, 0), App.Vector(-6.021122, 10.239856, 0)], [4, 1, 1, 1, 4], [0, 1.180555205, 2.24091978, 3.179933427, 4], False, 3, [1, 1, 1, 1, 1, 1, 1], False), False)  # 51
sketch2.addGeometry(Part.LineSegment(App.Vector(-6.181679, 10.194283, 0), App.Vector(-6.354155, 10.466318, 0)), False)  # 52
sketch2.addGeometry(Part.BSplineCurve([App.Vector(-6.080718, 10.553959, 0), App.Vector(-6.102544, 10.552768, 0), App.Vector(-6.147453, 10.550319, 0), App.Vector(-6.215436, 10.533108, 0), App.Vector(-6.285479, 10.50563, 0), App.Vector(-6.330622, 10.479789, 0), App.Vector(-6.354155, 10.466318, 0)], [4, 1, 1, 1, 4], [0, 0.901110191, 1.854092781, 2.881294221, 4], False, 3, [1, 1, 1, 1, 1, 1, 1], False), False)  # 53
sketch2.addGeometry(Part.BSplineCurve([App.Vector(-5.456719, 10.132584, 0), App.Vector(-5.479908, 10.16764, 0), App.Vector(-5.524256, 10.234684, 0), App.Vector(-5.597969, 10.323354, 0), App.Vector(-5.673473, 10.396769, 0), App.Vector(-5.751128, 10.455272, 0), App.Vector(-5.831506, 10.499085, 0), App.Vector(-5.912843, 10.531178, 0), App.Vector(-5.996418, 10.550156, 0), App.Vector(-6.05258, 10.552689, 0), App.Vector(-6.080718, 10.553959, 0)], [4, 1, 1, 1, 1, 1, 1, 1, 4], [0, 1.2804753, 2.448899062, 3.506932113, 4.484331642, 5.4025378, 6.288909075, 7.142734305, 8], False, 3, [1, 1, 1, 1, 1, 1, 1, 1, 1, 1, 1], False), False)  # 54
sketch2.addGeometry(Part.LineSegment(App.Vector(-5.456719, 10.132584, 0), App.Vector(-5.456719, 10.509087, 0)), False)  # 55
sketch2.addConstraint([
    Sketcher.Constraint("Block", 13),
    Sketcher.Constraint("Block", 14),
    Sketcher.Constraint("Block", 15),
    Sketcher.Constraint("Block", 16),
    Sketcher.Constraint("Block", 17),
    Sketcher.Constraint("Block", 18),
    Sketcher.Constraint("Block", 19),
    Sketcher.Constraint("Block", 20),
    Sketcher.Constraint("Block", 21),
    Sketcher.Constraint("Block", 22),
    Sketcher.Constraint("Block", 35),
    Sketcher.Constraint("Block", 36),
    Sketcher.Constraint("Block", 37),
    Sketcher.Constraint("Block", 38),
    Sketcher.Constraint("Block", 39),
    Sketcher.Constraint("Block", 40),
    Sketcher.Constraint("Block", 41),
    Sketcher.Constraint("Block", 42),
    Sketcher.Constraint("Block", 43),
    Sketcher.Constraint("Block", 44),
    Sketcher.Constraint("Block", 49),
    Sketcher.Constraint("Block", 50),
    Sketcher.Constraint("Block", 51),
    Sketcher.Constraint("Block", 53),
    Sketcher.Constraint("Block", 54),
    Sketcher.Constraint("Coincident", 45, 2, 46, 1),
    Sketcher.Constraint("Coincident", 46, 2, 47, 1),
    Sketcher.Constraint("Coincident", 47, 2, 48, 1),
    Sketcher.Constraint("Coincident", 48, 2, 49, 2),
    Sketcher.Constraint("Coincident", 51, 1, 52, 1),
    Sketcher.Constraint("Coincident", 52, 2, 53, 2),
    Sketcher.Constraint("Coincident", 54, 1, 55, 1),
    Sketcher.Constraint("Coincident", 55, 2, 45, 1),
    Sketcher.Constraint("Horizontal", 1),
    Sketcher.Constraint("Horizontal", 4),
    Sketcher.Constraint("Horizontal", 7),
    Sketcher.Constraint("Horizontal", 9),
    Sketcher.Constraint("Horizontal", 12),
    Sketcher.Constraint("Horizontal", 23),
    Sketcher.Constraint("Vertical", 24),
    Sketcher.Constraint("Horizontal", 25),
    Sketcher.Constraint("Vertical", 26),
    Sketcher.Constraint("Horizontal", 27),
    Sketcher.Constraint("Vertical", 28),
    Sketcher.Constraint("Horizontal", 29),
    Sketcher.Constraint("Vertical", 30),
    Sketcher.Constraint("Horizontal", 31),
    Sketcher.Constraint("Vertical", 32),
    Sketcher.Constraint("Horizontal", 33),
    Sketcher.Constraint("Vertical", 34),
    Sketcher.Constraint("Horizontal", 45),
    Sketcher.Constraint("Vertical", 46),
    Sketcher.Constraint("Horizontal", 47),
    Sketcher.Constraint("Vertical", 48),
    Sketcher.Constraint("Vertical", 55),
    Sketcher.Constraint("Horizontal", 1, 2, 3, 2),
    Sketcher.Constraint("Horizontal", 4, 2, 6, 2),
    Sketcher.Constraint("Horizontal", 9, 2, 11, 2),
    Sketcher.Constraint("Horizontal", 7, 2, 28, 2),
    Sketcher.Constraint("Horizontal", 27, 2, 30, 2),
    Sketcher.Constraint("Horizontal", 25, 2, 32, 2),
    Sketcher.Constraint("Horizontal", 33, 2, 45, 2),
    Sketcher.Constraint("Horizontal", 29, 2, 46, 2),
    Sketcher.Constraint("Vertical", 24, 2, 27, 2),
    Sketcher.Constraint("Vertical", 30, 2, 33, 2),
    Sketcher.Constraint("Equal", 27, 31),
    Sketcher.Constraint("Equal", 29, 45),
    Sketcher.Constraint("Equal", 47, 26),
    Sketcher.Constraint("Angle", 6, Q("-97.580015 deg")),
    Sketcher.Constraint("Distance", 2, Q("2.546098 mm")),
    Sketcher.Constraint("DistanceX", 12, 1, 12, 2, Q("0.044872 mm")),
    Sketcher.Constraint("DistanceY", 24, 2, 24, 1, Q("1.032051 mm")),
    Sketcher.Constraint("DistanceY", 28, 2, 28, 1, Q("2.24359 mm")),
    Sketcher.Constraint("DistanceX", -1, 1, 3, 2, Q("5.3679 mm")),
    Sketcher.Constraint("DistanceY", -1, 1, 10, 2, Q("8.5796 mm")),
    Sketcher.Constraint("DistanceX", 31, 2, -1, 1, Q("1.508001 mm")),
    Sketcher.Constraint("DistanceX", 5, 2, 1, 2, Q("2.936999 mm")),
    Sketcher.Constraint("DistanceY", 6, 2, 8, 2, Q("3.5 mm")),
    Sketcher.Constraint("DistanceX", 2, 2, 12, 2, Q("0.188602 mm")),
    Sketcher.Constraint("Distance", 3, Q("2.824788 mm")),
    Sketcher.Constraint("Distance", 6, Q("2.540631 mm")),
    Sketcher.Constraint("Distance", 11, Q("3.214851 mm")),
    Sketcher.Constraint("DistanceX", 1, 2, 1, 1, Q("0.316206 mm")),
    Sketcher.Constraint("DistanceX", 4, 2, 4, 1, Q("0.070813 mm")),
    Sketcher.Constraint("DistanceX", 7, 2, 7, 1, Q("0.315505 mm")),
    Sketcher.Constraint("DistanceX", 9, 1, 9, 2, Q("0.045573 mm")),
    Sketcher.Constraint("DistanceX", 23, 1, 23, 2, Q("0.314103 mm")),
    Sketcher.Constraint("DistanceX", 25, 1, 25, 2, Q("0.448718 mm")),
    Sketcher.Constraint("DistanceY", 48, 1, 48, 2, Q("0.859575 mm")),
    Sketcher.Constraint("DistanceX", -1, 1, 0, 2, Q("7.28687 mm")),
    Sketcher.Constraint("DistanceX", -1, 1, 9, 2, Q("3.893441 mm")),
])
pocket1 = body.newObject("PartDesign::Pocket", "Pocket")
pocket1.Profile = sketch2
pocket1.Length = Q("0.03125 in")
pocket1.Reversed = True

doc.recompute()
